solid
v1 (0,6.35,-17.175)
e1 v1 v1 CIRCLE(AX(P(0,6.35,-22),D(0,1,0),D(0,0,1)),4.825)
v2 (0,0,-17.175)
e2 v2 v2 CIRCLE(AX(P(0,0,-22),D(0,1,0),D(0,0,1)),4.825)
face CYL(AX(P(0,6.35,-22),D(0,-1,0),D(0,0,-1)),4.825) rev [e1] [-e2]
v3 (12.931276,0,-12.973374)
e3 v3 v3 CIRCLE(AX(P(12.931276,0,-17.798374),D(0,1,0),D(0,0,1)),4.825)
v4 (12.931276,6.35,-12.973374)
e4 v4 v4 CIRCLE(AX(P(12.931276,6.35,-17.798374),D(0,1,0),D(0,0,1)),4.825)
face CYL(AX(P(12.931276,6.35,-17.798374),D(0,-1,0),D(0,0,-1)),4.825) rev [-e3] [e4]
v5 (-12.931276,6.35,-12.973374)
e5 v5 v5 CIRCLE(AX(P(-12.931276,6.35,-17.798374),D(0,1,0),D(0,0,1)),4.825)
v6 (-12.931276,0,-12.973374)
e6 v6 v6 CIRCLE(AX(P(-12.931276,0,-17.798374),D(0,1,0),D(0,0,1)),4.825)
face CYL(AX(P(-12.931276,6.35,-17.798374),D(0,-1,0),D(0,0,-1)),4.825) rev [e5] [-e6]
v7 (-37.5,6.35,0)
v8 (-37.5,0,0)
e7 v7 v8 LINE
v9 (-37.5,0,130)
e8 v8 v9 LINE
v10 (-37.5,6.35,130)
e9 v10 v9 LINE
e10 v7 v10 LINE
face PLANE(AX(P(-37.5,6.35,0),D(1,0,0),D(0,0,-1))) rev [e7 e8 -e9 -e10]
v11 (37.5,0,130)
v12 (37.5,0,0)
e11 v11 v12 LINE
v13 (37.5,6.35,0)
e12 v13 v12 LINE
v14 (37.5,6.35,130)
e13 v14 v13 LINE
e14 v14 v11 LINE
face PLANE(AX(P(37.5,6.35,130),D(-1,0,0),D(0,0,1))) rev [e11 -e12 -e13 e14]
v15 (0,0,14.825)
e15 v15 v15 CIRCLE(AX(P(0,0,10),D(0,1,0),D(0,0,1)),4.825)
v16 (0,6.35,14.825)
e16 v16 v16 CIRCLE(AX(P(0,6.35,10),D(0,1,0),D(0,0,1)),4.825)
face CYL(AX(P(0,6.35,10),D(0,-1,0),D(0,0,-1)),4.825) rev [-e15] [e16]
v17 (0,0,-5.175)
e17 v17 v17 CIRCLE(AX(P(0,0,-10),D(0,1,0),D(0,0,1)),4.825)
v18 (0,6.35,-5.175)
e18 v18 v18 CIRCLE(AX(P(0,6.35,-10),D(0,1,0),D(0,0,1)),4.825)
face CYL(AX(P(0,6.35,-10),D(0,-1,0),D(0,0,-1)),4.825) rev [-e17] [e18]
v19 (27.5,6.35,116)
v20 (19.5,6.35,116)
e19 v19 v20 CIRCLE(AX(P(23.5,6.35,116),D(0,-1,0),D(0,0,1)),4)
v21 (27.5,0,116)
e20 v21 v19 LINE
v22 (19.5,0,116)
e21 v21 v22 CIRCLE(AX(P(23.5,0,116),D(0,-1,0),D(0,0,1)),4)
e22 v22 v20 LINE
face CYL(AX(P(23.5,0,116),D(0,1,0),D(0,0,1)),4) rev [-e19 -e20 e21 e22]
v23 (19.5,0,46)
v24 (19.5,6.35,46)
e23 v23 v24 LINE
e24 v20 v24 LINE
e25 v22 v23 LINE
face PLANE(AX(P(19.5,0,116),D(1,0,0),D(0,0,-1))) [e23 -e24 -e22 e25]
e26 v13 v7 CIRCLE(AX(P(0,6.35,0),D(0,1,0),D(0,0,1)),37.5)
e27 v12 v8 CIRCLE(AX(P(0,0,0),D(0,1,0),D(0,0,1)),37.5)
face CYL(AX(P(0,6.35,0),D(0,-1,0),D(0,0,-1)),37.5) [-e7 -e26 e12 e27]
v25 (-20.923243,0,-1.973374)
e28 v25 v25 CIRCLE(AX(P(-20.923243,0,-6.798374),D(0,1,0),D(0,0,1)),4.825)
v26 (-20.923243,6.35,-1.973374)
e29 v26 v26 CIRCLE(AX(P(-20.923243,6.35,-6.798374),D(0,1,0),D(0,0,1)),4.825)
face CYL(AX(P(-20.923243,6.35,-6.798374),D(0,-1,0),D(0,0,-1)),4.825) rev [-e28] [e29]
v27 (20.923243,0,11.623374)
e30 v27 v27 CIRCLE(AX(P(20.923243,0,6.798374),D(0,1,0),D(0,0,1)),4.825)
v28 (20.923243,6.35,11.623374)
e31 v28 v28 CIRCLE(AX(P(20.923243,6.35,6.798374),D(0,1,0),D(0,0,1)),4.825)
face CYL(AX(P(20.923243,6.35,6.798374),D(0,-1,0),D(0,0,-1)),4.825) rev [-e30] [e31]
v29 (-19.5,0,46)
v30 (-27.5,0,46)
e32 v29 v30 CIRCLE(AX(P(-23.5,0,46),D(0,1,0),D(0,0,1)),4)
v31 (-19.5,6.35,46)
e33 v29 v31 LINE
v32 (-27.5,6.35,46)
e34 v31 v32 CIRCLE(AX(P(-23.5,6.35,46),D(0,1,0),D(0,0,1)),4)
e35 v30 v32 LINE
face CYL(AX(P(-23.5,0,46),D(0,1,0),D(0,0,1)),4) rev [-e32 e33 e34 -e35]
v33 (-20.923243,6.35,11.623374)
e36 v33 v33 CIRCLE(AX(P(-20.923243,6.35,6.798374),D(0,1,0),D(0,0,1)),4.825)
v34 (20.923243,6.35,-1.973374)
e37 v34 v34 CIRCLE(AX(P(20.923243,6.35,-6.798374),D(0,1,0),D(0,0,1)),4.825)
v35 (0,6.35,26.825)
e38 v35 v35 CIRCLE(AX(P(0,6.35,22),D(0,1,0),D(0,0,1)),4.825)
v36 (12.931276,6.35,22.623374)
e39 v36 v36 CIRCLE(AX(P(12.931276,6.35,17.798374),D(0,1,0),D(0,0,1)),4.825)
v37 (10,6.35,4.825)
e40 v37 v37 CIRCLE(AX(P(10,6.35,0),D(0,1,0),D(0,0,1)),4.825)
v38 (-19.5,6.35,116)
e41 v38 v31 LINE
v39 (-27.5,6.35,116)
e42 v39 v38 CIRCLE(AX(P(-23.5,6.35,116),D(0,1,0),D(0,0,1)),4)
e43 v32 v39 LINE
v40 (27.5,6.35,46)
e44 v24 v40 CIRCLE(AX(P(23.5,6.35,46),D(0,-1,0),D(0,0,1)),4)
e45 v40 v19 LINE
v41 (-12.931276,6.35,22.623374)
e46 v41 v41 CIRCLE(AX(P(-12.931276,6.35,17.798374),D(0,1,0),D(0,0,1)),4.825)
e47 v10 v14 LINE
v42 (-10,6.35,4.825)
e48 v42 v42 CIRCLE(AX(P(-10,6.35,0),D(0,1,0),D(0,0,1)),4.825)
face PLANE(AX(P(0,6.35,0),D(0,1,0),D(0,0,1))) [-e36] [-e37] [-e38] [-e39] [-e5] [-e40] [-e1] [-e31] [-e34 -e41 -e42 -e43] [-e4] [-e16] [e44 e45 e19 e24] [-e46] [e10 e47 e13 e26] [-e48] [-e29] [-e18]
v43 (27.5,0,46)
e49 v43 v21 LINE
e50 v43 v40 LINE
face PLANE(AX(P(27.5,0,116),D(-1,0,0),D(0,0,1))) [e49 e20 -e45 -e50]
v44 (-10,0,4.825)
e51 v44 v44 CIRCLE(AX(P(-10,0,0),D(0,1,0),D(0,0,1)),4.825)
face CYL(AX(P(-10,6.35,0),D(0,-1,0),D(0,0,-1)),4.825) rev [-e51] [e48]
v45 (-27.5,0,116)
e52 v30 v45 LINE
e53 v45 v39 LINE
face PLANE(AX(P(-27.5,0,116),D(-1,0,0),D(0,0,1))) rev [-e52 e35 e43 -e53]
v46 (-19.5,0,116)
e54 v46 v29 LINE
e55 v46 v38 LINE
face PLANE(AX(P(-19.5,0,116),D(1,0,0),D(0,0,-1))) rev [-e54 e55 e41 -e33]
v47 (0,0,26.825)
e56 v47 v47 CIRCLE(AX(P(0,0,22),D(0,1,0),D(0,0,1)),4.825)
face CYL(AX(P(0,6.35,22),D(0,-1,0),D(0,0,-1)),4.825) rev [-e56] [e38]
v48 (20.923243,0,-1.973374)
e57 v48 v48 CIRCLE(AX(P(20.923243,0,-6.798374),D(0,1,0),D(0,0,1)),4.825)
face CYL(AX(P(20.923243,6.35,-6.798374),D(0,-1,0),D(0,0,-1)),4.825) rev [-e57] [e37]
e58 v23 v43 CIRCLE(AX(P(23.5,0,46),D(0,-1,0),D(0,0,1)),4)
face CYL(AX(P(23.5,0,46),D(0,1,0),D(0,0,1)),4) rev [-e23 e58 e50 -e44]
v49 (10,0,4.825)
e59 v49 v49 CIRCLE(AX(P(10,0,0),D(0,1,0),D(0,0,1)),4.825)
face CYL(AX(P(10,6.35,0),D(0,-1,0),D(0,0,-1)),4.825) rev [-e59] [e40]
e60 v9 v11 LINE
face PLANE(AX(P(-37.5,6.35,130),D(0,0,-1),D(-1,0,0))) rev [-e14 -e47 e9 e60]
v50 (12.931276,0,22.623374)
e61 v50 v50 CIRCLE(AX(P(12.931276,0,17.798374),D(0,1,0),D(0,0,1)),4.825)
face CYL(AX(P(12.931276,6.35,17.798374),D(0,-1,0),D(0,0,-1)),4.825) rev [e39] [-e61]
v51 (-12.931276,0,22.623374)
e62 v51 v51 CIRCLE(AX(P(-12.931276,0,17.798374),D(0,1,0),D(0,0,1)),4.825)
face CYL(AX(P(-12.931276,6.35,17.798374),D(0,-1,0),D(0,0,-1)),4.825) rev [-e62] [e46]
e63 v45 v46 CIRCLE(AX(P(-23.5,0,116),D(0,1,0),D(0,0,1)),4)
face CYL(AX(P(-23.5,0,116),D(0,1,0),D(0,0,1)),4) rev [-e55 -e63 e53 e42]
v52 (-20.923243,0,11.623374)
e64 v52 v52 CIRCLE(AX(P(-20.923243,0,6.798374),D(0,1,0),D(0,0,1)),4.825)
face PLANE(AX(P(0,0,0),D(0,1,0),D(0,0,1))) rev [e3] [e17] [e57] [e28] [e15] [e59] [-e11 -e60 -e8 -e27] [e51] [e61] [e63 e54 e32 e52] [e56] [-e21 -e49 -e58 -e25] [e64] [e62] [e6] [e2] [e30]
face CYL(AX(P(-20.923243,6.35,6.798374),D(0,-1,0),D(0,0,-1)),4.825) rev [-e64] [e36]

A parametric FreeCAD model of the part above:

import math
import FreeCAD as App
import Part
import Sketcher

V = App.Vector

doc = App.newDocument("Part")
body = doc.addObject("PartDesign::Body", "Body")

# Sketch on XZ plane
sketch1 = body.newObject("Sketcher::SketchObject", "Sketch")
sketch1.AttachmentSupport = (doc.getObject("XZ_Plane"), [""])
sketch1.MapMode = "FlatFace"
sketch1.addGeometry([
    Part.LineSegment(V(-37.5, 0, 0), V(-37.5, 130, 0)),  # 0
    Part.LineSegment(V(-37.5, 130, 0), V(37.5, 130, 0)),  # 1
    Part.LineSegment(V(37.5, 130, 0), V(37.5, 0, 0)),  # 2
    Part.ArcOfCircle(Part.Circle(V(0, 0, 0), V(0, 0, 1), 37.5), math.radians(180), math.radians(360)),  # 3
    Part.Circle(V(-12.9, 17.8, 0), V(0, 0, 1), 4.8),  # 4
    Part.Circle(V(-20.9, 6.8, 0), V(0, 0, 1), 4.8),  # 5
    Part.Circle(V(-10, 0, 0), V(0, 0, 1), 4.8),  # 6
    Part.Circle(V(0, 22, 0), V(0, 0, 1), 4.8),  # 7
    Part.Circle(V(12.9, 17.8, 0), V(0, 0, 1), 4.8),  # 8
    Part.Circle(V(0, 10, 0), V(0, 0, 1), 4.8),  # 9
    Part.Circle(V(10, 0, 0), V(0, 0, 1), 4.8),  # 10
    Part.Circle(V(20.9, 6.8, 0), V(0, 0, 1), 4.8),  # 11
    Part.Circle(V(-20.9, -6.8, 0), V(0, 0, 1), 4.8),  # 12
    Part.Circle(V(-12.9, -17.8, 0), V(0, 0, 1), 4.8),  # 13
    Part.Circle(V(0, -10, 0), V(0, 0, 1), 4.8),  # 14
    Part.Circle(V(20.9, -6.8, 0), V(0, 0, 1), 4.8),  # 15
    Part.Circle(V(0, -22, 0), V(0, 0, 1), 4.8),  # 16
    Part.Circle(V(12.9, -17.8, 0), V(0, 0, 1), 4.8),  # 17
], False)
sketch1.addConstraint([
    Sketcher.Constraint("Coincident", 0, 2, 1, 1),
    Sketcher.Constraint("Coincident", 1, 2, 2, 1),
    Sketcher.Constraint("Tangent", 2, 2, 3, 2),
    Sketcher.Constraint("Tangent", 3, 1, 0, 1),
    Sketcher.Constraint("Vertical", 0),
    Sketcher.Constraint("Horizontal", 1),
    Sketcher.Constraint("Vertical", 2),
    Sketcher.Constraint("Coincident", 3, 3, -1, 1),
    Sketcher.Constraint("Equal", 4, 5),
    Sketcher.Constraint("Equal", 5, 6),
    Sketcher.Constraint("Equal", 6, 7),
    Sketcher.Constraint("Equal", 7, 8),
    Sketcher.Constraint("Equal", 8, 9),
    Sketcher.Constraint("Equal", 9, 10),
    Sketcher.Constraint("Equal", 10, 11),
    Sketcher.Constraint("Equal", 11, 12),
    Sketcher.Constraint("Equal", 12, 13),
    Sketcher.Constraint("Equal", 13, 14),
    Sketcher.Constraint("Equal", 14, 15),
    Sketcher.Constraint("Equal", 15, 16),
    Sketcher.Constraint("Equal", 16, 17),
    Sketcher.Constraint("Symmetric", 6, 3, 10, 3, -1, 1),
    Sketcher.Constraint("Symmetric", 11, 3, 12, 3, -1, 1),
    Sketcher.Constraint("Symmetric", 8, 3, 13, 3, -1, 1),
    Sketcher.Constraint("Symmetric", 9, 3, 14, 3, -1, 1),
    Sketcher.Constraint("Symmetric", 5, 3, 15, 3, -1, 1),
    Sketcher.Constraint("Symmetric", 7, 3, 16, 3, -1, 1),
    Sketcher.Constraint("Symmetric", 4, 3, 17, 3, -1, 1),
    Sketcher.Constraint("Symmetric", 4, 3, 8, 3, -2),
    Sketcher.Constraint("Symmetric", 5, 3, 11, 3, -2),
    Sketcher.Constraint("PointOnObject", 6, 3, -1),
    Sketcher.Constraint("PointOnObject", 7, 3, -2),
    Sketcher.Constraint("PointOnObject", 9, 3, -2),
    Sketcher.Constraint("Radius", 3, 37.5),
    Sketcher.Constraint("Diameter", 4, 9.65),
    Sketcher.Constraint("DistanceY", 0, 1, 0, 2, 130.0),
    Sketcher.Constraint("DistanceX", 6, 3, -1, 1, 10.0),
    Sketcher.Constraint("DistanceY", -1, 1, 7, 3, 22.0),
    Sketcher.Constraint("DistanceY", -1, 1, 9, 3, 10.0),
    Sketcher.Constraint("DistanceY", 5, 3, 4, 3, 11.0),
    Sketcher.Constraint("DistanceX", 4, 3, 8, 3, 25.862551),
    Sketcher.Constraint("DistanceX", 5, 3, 8, 3, 33.854519),
    Sketcher.Constraint("DistanceY", -1, 1, 4, 3, 17.798374),
])
pad1 = body.newObject("PartDesign::Pad", "Pad")
pad1.Profile = sketch1
pad1.Length = 6.35
pad1.Reversed = True

# Sketch on XZ plane
sketch2 = body.newObject("Sketcher::SketchObject", "Sketch001")
sketch2.AttachmentSupport = (doc.getObject("XZ_Plane"), [""])
sketch2.MapMode = "FlatFace"
sketch2.AttachmentOffset = App.Placement(V(0, 0, -6.35), App.Rotation())
sketch2.addGeometry([
    Part.LineSegment(V(-27.5, 46, 0), V(-27.5, 116, 0)),
    Part.ArcOfCircle(Part.Circle(V(-23.5, 116, 0), V(0, 0, 1), 4), math.radians(0), math.radians(180)),
    Part.LineSegment(V(-19.5, 116, 0), V(-19.5, 46, 0)),
    Part.ArcOfCircle(Part.Circle(V(-23.5, 46, 0), V(0, 0, 1), 4), math.radians(180), math.radians(360)),
], False)
sketch2.addConstraint([
    Sketcher.Constraint("Tangent", 0, 2, 1, 2),
    Sketcher.Constraint("Tangent", 1, 1, 2, 1),
    Sketcher.Constraint("Tangent", 2, 2, 3, 2),
    Sketcher.Constraint("Tangent", 3, 1, 0, 1),
    Sketcher.Constraint("Vertical", 0),
    Sketcher.Constraint("Vertical", 2),
    Sketcher.Constraint("Radius", 1, 4.0),
    Sketcher.Constraint("DistanceY", 0, 1, 0, 2, 70.0),
    Sketcher.Constraint("DistanceY", -1, 1, 1, 3, 116.0),
    Sketcher.Constraint("DistanceX", 1, 3, -1, 1, 23.5),
])
pocket1 = body.newObject("PartDesign::Pocket", "Pocket")
pocket1.Profile = sketch2
pocket1.Type = "ThroughAll"
pocket1.Reversed = True
doc.recompute()

mirrored = body.newObject("PartDesign::Mirrored", "Mirrored")
mirrored.Originals = [pocket1]
mirrored.MirrorPlane = (doc.getObject("YZ_Plane"), [""])
body.Tip = mirrored

doc.recompute()
